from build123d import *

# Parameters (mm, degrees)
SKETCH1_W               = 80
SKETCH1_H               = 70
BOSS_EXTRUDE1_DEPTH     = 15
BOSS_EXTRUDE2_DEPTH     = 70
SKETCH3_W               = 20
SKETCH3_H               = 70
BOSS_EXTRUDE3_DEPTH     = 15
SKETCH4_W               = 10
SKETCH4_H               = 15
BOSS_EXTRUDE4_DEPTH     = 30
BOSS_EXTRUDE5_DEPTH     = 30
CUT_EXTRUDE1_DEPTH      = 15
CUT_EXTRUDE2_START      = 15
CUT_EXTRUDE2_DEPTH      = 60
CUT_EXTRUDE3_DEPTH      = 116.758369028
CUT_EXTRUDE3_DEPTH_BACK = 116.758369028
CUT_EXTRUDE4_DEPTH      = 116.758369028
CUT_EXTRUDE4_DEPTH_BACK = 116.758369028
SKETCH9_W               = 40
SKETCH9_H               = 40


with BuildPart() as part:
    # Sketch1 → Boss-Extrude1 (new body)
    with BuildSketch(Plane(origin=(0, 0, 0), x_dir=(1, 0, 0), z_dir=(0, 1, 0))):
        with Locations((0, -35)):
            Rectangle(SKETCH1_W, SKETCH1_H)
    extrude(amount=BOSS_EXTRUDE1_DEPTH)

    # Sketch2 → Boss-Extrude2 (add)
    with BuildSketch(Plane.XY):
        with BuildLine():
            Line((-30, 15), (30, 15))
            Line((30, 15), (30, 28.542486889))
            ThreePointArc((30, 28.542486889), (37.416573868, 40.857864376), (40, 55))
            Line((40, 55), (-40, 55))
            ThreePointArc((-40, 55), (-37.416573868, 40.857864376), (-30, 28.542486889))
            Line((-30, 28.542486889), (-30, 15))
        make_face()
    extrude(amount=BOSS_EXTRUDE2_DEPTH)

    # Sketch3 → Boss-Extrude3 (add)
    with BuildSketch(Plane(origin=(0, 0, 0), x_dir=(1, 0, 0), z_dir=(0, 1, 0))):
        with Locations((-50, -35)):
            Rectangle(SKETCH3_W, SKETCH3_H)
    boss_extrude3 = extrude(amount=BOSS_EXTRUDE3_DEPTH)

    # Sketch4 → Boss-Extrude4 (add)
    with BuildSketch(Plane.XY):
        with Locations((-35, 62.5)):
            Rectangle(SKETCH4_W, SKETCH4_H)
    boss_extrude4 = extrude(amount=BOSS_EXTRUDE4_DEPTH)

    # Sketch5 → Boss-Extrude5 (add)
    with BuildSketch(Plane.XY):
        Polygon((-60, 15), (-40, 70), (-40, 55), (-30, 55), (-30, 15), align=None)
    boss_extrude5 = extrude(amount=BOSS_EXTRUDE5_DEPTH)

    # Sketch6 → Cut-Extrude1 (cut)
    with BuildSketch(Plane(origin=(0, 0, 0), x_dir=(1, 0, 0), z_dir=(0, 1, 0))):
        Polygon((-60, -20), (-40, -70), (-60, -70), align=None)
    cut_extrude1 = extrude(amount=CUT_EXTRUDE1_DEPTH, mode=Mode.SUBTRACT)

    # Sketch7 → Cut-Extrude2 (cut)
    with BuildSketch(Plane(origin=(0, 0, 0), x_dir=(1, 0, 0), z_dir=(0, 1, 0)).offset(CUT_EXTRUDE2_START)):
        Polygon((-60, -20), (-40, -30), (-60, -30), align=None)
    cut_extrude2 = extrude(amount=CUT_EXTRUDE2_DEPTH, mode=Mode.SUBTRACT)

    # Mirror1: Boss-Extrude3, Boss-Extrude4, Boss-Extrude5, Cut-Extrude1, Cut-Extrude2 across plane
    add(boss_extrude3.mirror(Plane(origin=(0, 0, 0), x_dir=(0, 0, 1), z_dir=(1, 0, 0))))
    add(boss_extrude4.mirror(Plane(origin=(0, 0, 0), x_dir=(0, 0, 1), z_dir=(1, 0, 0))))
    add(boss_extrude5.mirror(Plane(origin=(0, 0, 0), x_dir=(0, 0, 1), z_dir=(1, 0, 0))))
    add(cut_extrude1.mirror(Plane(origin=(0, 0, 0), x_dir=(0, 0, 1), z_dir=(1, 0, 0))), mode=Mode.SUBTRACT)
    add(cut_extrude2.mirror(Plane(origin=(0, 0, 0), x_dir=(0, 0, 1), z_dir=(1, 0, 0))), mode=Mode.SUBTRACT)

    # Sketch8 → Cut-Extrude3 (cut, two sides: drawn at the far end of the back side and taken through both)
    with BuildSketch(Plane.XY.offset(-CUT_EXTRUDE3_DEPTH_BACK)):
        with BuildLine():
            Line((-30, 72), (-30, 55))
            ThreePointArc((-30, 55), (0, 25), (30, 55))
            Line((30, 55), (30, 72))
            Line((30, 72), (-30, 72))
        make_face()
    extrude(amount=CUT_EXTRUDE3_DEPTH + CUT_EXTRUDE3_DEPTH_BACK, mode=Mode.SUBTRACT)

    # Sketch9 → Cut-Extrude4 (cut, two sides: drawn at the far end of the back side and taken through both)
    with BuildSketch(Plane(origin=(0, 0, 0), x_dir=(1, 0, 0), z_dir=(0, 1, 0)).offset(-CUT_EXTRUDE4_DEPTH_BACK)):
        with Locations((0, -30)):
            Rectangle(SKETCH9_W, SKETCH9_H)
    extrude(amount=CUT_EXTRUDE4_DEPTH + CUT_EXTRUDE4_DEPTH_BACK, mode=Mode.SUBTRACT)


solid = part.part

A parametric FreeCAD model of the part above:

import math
import FreeCAD as App
import Part
import Sketcher

V = App.Vector
Q = App.Units.Quantity

doc = App.newDocument("Part")
body = doc.addObject("PartDesign::Body", "Body")

# Sketch on XZ plane
sketch1 = body.newObject("Sketcher::SketchObject", "Sketch")
sketch1.AttachmentSupport = (doc.getObject("XZ_Plane"), [""])
sketch1.MapMode = "FlatFace"
sketch1.addGeometry([
    Part.LineSegment(V(-40, 0, 0), V(-40, 70, 0)),
    Part.LineSegment(V(-40, 70, 0), V(40, 70, 0)),
    Part.LineSegment(V(40, 70, 0), V(40, 0, 0)),
    Part.LineSegment(V(40, 0, 0), V(-40, 0, 0)),
], False)
sketch1.addConstraint([
    Sketcher.Constraint("Coincident", 0, 2, 1, 1),
    Sketcher.Constraint("Coincident", 1, 2, 2, 1),
    Sketcher.Constraint("Coincident", 2, 2, 3, 1),
    Sketcher.Constraint("Coincident", 3, 2, 0, 1),
    Sketcher.Constraint("Vertical", 0),
    Sketcher.Constraint("Horizontal", 1),
    Sketcher.Constraint("Vertical", 2),
    Sketcher.Constraint("Horizontal", 3),
    Sketcher.Constraint("Symmetric", 2, 2, 3, 2, -1, 1),
    Sketcher.Constraint("DistanceX", 1, 1, 1, 2, Q("80 mm")),
    Sketcher.Constraint("DistanceY", 0, 1, 0, 2, Q("70 mm")),
])
pad1 = body.newObject("PartDesign::Pad", "Pad")
pad1.Profile = sketch1
pad1.Length = 15
pad1.Reversed = True

# Sketch on XY plane
sketch2 = body.newObject("Sketcher::SketchObject", "Sketch001")
sketch2.AttachmentSupport = (doc.getObject("XY_Plane"), [""])
sketch2.MapMode = "FlatFace"
sketch2.addGeometry([
    Part.LineSegment(V(-30, 15, 0), V(30, 15, 0)),  # 0
    Part.LineSegment(V(30, 15, 0), V(30, 28.542487, 0)),  # 1
    Part.ArcOfCircle(Part.Circle(V(0, 55, 0), V(0, 0, 1), 40), math.radians(-41.409622), math.radians(0)),  # 2
    Part.LineSegment(V(40, 55, 0), V(-40, 55, 0)),  # 3
    Part.ArcOfCircle(Part.Circle(V(0, 55, 0), V(0, 0, 1), 40), math.radians(180), math.radians(221.409622)),  # 4
    Part.LineSegment(V(-30, 28.542487, 0), V(-30, 15, 0)),  # 5
], False)
sketch2.addConstraint([
    Sketcher.Constraint("Coincident", 0, 2, 1, 1),
    Sketcher.Constraint("Coincident", 1, 2, 2, 1),
    Sketcher.Constraint("Coincident", 2, 2, 3, 1),
    Sketcher.Constraint("Coincident", 3, 2, 4, 1),
    Sketcher.Constraint("Coincident", 4, 2, 5, 1),
    Sketcher.Constraint("Coincident", 5, 2, 0, 1),
    Sketcher.Constraint("Horizontal", 0),
    Sketcher.Constraint("Vertical", 1),
    Sketcher.Constraint("Horizontal", 3),
    Sketcher.Constraint("Vertical", 5),
    Sketcher.Constraint("Coincident", 4, 3, 2, 3),
    Sketcher.Constraint("Equal", 2, 4),
    Sketcher.Constraint("Symmetric", 1, 2, 4, 2, -2),
    Sketcher.Constraint("Horizontal", 4, 3, 2, 2),
    Sketcher.Constraint("Radius", 2, Q("40 mm")),
    Sketcher.Constraint("DistanceX", 0, 1, 0, 2, Q("60 mm")),
    Sketcher.Constraint("DistanceY", -1, 1, 2, 3, Q("55 mm")),
    Sketcher.Constraint("DistanceY", -1, 1, 0, 2, Q("15 mm")),
])
pad2 = body.newObject("PartDesign::Pad", "Pad001")
pad2.Profile = sketch2
pad2.Length = 70

# Sketch on XZ plane
sketch3 = body.newObject("Sketcher::SketchObject", "Sketch002")
sketch3.AttachmentSupport = (doc.getObject("XZ_Plane"), [""])
sketch3.MapMode = "FlatFace"
sketch3.addGeometry([
    Part.LineSegment(V(-60, 0, 0), V(-60, 70, 0)),
    Part.LineSegment(V(-60, 70, 0), V(-40, 70, 0)),
    Part.LineSegment(V(-40, 70, 0), V(-40, 0, 0)),
    Part.LineSegment(V(-40, 0, 0), V(-60, 0, 0)),
], False)
sketch3.addConstraint([
    Sketcher.Constraint("Coincident", 0, 2, 1, 1),
    Sketcher.Constraint("Coincident", 1, 2, 2, 1),
    Sketcher.Constraint("Coincident", 2, 2, 3, 1),
    Sketcher.Constraint("Coincident", 3, 2, 0, 1),
    Sketcher.Constraint("Vertical", 0),
    Sketcher.Constraint("Horizontal", 1),
    Sketcher.Constraint("Vertical", 2),
    Sketcher.Constraint("Horizontal", 3),
    Sketcher.Constraint("PointOnObject", 2, 2, -1),
    Sketcher.Constraint("DistanceX", 1, 1, 1, 2, Q("20 mm")),
    Sketcher.Constraint("DistanceY", 0, 1, 0, 2, Q("70 mm")),
    Sketcher.Constraint("DistanceX", 0, 2, -1, 1, Q("60 mm")),
])
pad3 = body.newObject("PartDesign::Pad", "Pad002")
pad3.Profile = sketch3
pad3.Length = 15
pad3.Reversed = True

# Sketch on XY plane
sketch4 = body.newObject("Sketcher::SketchObject", "Sketch003")
sketch4.AttachmentSupport = (doc.getObject("XY_Plane"), [""])
sketch4.MapMode = "FlatFace"
sketch4.addGeometry([
    Part.LineSegment(V(-40, 70, 0), V(-40, 55, 0)),
    Part.LineSegment(V(-40, 55, 0), V(-30, 55, 0)),
    Part.LineSegment(V(-30, 55, 0), V(-30, 70, 0)),
    Part.LineSegment(V(-30, 70, 0), V(-40, 70, 0)),
], False)
sketch4.addConstraint([
    Sketcher.Constraint("Coincident", 0, 2, 1, 1),
    Sketcher.Constraint("Coincident", 1, 2, 2, 1),
    Sketcher.Constraint("Coincident", 2, 2, 3, 1),
    Sketcher.Constraint("Coincident", 3, 2, 0, 1),
    Sketcher.Constraint("Vertical", 0),
    Sketcher.Constraint("Horizontal", 1),
    Sketcher.Constraint("Vertical", 2),
    Sketcher.Constraint("Horizontal", 3),
    Sketcher.Constraint("DistanceX", 1, 1, 1, 2, Q("10 mm")),
    Sketcher.Constraint("DistanceY", 0, 2, 0, 1, Q("15 mm")),
    Sketcher.Constraint("DistanceX", 0, 2, -1, 1, Q("40 mm")),
    Sketcher.Constraint("DistanceY", -1, 1, 0, 2, Q("55 mm")),
])
pad4 = body.newObject("PartDesign::Pad", "Pad003")
pad4.Profile = sketch4
pad4.Length = 30

# Sketch on XY plane
sketch5 = body.newObject("Sketcher::SketchObject", "Sketch004")
sketch5.AttachmentSupport = (doc.getObject("XY_Plane"), [""])
sketch5.MapMode = "FlatFace"
sketch5.addGeometry([
    Part.LineSegment(V(-40, 70, 0), V(-60, 15, 0)),  # 0
    Part.LineSegment(V(-60, 15, 0), V(-30, 15, 0)),  # 1
    Part.LineSegment(V(-30, 15, 0), V(-30, 55, 0)),  # 2
    Part.LineSegment(V(-30, 55, 0), V(-40, 55, 0)),  # 3
    Part.LineSegment(V(-40, 55, 0), V(-40, 70, 0)),  # 4
], False)
sketch5.addConstraint([
    Sketcher.Constraint("Coincident", 0, 2, 1, 1),
    Sketcher.Constraint("Coincident", 1, 2, 2, 1),
    Sketcher.Constraint("Coincident", 2, 2, 3, 1),
    Sketcher.Constraint("Coincident", 3, 2, 4, 1),
    Sketcher.Constraint("Coincident", 4, 2, 0, 1),
    Sketcher.Constraint("Horizontal", 1),
    Sketcher.Constraint("Vertical", 2),
    Sketcher.Constraint("Horizontal", 3),
    Sketcher.Constraint("Vertical", 4),
    Sketcher.Constraint("DistanceX", 1, 1, 1, 2, Q("30 mm")),
    Sketcher.Constraint("DistanceX", 3, 2, 3, 1, Q("10 mm")),
    Sketcher.Constraint("DistanceY", 2, 1, 2, 2, Q("40 mm")),
    Sketcher.Constraint("DistanceY", 4, 1, 4, 2, Q("15 mm")),
    Sketcher.Constraint("DistanceX", 0, 2, -1, 1, Q("60 mm")),
    Sketcher.Constraint("DistanceY", -1, 1, 0, 2, Q("15 mm")),
])
pad5 = body.newObject("PartDesign::Pad", "Pad004")
pad5.Profile = sketch5
pad5.Length = 30

# Sketch on XZ plane
sketch6 = body.newObject("Sketcher::SketchObject", "Sketch005")
sketch6.AttachmentSupport = (doc.getObject("XZ_Plane"), [""])
sketch6.MapMode = "FlatFace"
sketch6.addGeometry([
    Part.LineSegment(V(-40, 70, 0), V(-60, 20, 0)),
    Part.LineSegment(V(-60, 20, 0), V(-60, 70, 0)),
    Part.LineSegment(V(-60, 70, 0), V(-40, 70, 0)),
], False)
sketch6.addConstraint([
    Sketcher.Constraint("Coincident", 0, 2, 1, 1),
    Sketcher.Constraint("Coincident", 1, 2, 2, 1),
    Sketcher.Constraint("Coincident", 2, 2, 0, 1),
    Sketcher.Constraint("Vertical", 1),
    Sketcher.Constraint("Horizontal", 2),
    Sketcher.Constraint("DistanceX", 2, 1, 2, 2, Q("20 mm")),
    Sketcher.Constraint("DistanceY", 1, 1, 1, 2, Q("50 mm")),
    Sketcher.Constraint("DistanceX", 0, 2, -1, 1, Q("60 mm")),
    Sketcher.Constraint("DistanceY", -1, 1, 0, 2, Q("20 mm")),
])
pocket1 = body.newObject("PartDesign::Pocket", "Pocket")
pocket1.Profile = sketch6
pocket1.Length = 15

# Sketch on XZ plane
sketch7 = body.newObject("Sketcher::SketchObject", "Sketch006")
sketch7.AttachmentSupport = (doc.getObject("XZ_Plane"), [""])
sketch7.MapMode = "FlatFace"
sketch7.AttachmentOffset = App.Placement(V(0, 0, -15), App.Rotation())
sketch7.addGeometry([
    Part.LineSegment(V(-40, 30, 0), V(-60, 20, 0)),
    Part.LineSegment(V(-60, 20, 0), V(-60, 30, 0)),
    Part.LineSegment(V(-60, 30, 0), V(-40, 30, 0)),
], False)
sketch7.addConstraint([
    Sketcher.Constraint("Coincident", 0, 2, 1, 1),
    Sketcher.Constraint("Coincident", 1, 2, 2, 1),
    Sketcher.Constraint("Coincident", 2, 2, 0, 1),
    Sketcher.Constraint("Vertical", 1),
    Sketcher.Constraint("Horizontal", 2),
    Sketcher.Constraint("DistanceX", 2, 1, 2, 2, Q("20 mm")),
    Sketcher.Constraint("DistanceY", 1, 1, 1, 2, Q("10 mm")),
    Sketcher.Constraint("DistanceX", 0, 2, -1, 1, Q("60 mm")),
    Sketcher.Constraint("DistanceY", -1, 1, 0, 2, Q("20 mm")),
])
pocket2 = body.newObject("PartDesign::Pocket", "Pocket001")
pocket2.Profile = sketch7
pocket2.Length = 60
doc.recompute()

mirrored = body.newObject("PartDesign::Mirrored", "Mirrored")
mirrored.Originals = [pad3, pad4, pad5, pocket1, pocket2]
mirrored.MirrorPlane = (doc.getObject("YZ_Plane"), [""])
body.Tip = mirrored

# Sketch on XY plane
sketch8 = body.newObject("Sketcher::SketchObject", "Sketch007")
sketch8.AttachmentSupport = (doc.getObject("XY_Plane"), [""])
sketch8.MapMode = "FlatFace"
sketch8.addGeometry([
    Part.LineSegment(V(-30, 72, 0), V(-30, 55, 0)),
    Part.ArcOfCircle(Part.Circle(V(0, 55, 0), V(0, 0, 1), 30), math.radians(180), math.radians(360)),
    Part.LineSegment(V(30, 55, 0), V(30, 72, 0)),
    Part.LineSegment(V(30, 72, 0), V(-30, 72, 0)),
], False)
sketch8.addConstraint([
    Sketcher.Constraint("Tangent", 0, 2, 1, 1),
    Sketcher.Constraint("Tangent", 1, 2, 2, 1),
    Sketcher.Constraint("Coincident", 2, 2, 3, 1),
    Sketcher.Constraint("Coincident", 3, 2, 0, 1),
    Sketcher.Constraint("Vertical", 0),
    Sketcher.Constraint("Vertical", 2),
    Sketcher.Constraint("Horizontal", 3),
    Sketcher.Constraint("PointOnObject", 1, 3, -2),
    Sketcher.Constraint("Radius", 1, Q("30 mm")),
    Sketcher.Constraint("DistanceY", 0, 2, 0, 1, Q("17 mm")),
    Sketcher.Constraint("DistanceY", -1, 1, 1, 3, Q("55 mm")),
])
pocket3 = body.newObject("PartDesign::Pocket", "Pocket002")
pocket3.Profile = sketch8
pocket3.Type = "ThroughAll"
pocket3.Midplane = True

# Sketch on XZ plane
sketch9 = body.newObject("Sketcher::SketchObject", "Sketch008")
sketch9.AttachmentSupport = (doc.getObject("XZ_Plane"), [""])
sketch9.MapMode = "FlatFace"
sketch9.addGeometry([
    Part.LineSegment(V(-20, 10, 0), V(-20, 50, 0)),
    Part.LineSegment(V(-20, 50, 0), V(20, 50, 0)),
    Part.LineSegment(V(20, 50, 0), V(20, 10, 0)),
    Part.LineSegment(V(20, 10, 0), V(-20, 10, 0)),
], False)
sketch9.addConstraint([
    Sketcher.Constraint("Coincident", 0, 2, 1, 1),
    Sketcher.Constraint("Coincident", 1, 2, 2, 1),
    Sketcher.Constraint("Coincident", 2, 2, 3, 1),
    Sketcher.Constraint("Coincident", 3, 2, 0, 1),
    Sketcher.Constraint("Vertical", 0),
    Sketcher.Constraint("Horizontal", 1),
    Sketcher.Constraint("Vertical", 2),
    Sketcher.Constraint("Horizontal", 3),
    Sketcher.Constraint("Equal", 3, 0),
    Sketcher.Constraint("DistanceX", 1, 1, 1, 2, Q("40 mm")),
    Sketcher.Constraint("DistanceX", 0, 2, -1, 1, Q("20 mm")),
    Sketcher.Constraint("DistanceY", -1, 1, 0, 2, Q("50 mm")),
])
pocket4 = body.newObject("PartDesign::Pocket", "Pocket003")
pocket4.Profile = sketch9
pocket4.Type = "ThroughAll"
pocket4.Midplane = True

doc.recompute()
